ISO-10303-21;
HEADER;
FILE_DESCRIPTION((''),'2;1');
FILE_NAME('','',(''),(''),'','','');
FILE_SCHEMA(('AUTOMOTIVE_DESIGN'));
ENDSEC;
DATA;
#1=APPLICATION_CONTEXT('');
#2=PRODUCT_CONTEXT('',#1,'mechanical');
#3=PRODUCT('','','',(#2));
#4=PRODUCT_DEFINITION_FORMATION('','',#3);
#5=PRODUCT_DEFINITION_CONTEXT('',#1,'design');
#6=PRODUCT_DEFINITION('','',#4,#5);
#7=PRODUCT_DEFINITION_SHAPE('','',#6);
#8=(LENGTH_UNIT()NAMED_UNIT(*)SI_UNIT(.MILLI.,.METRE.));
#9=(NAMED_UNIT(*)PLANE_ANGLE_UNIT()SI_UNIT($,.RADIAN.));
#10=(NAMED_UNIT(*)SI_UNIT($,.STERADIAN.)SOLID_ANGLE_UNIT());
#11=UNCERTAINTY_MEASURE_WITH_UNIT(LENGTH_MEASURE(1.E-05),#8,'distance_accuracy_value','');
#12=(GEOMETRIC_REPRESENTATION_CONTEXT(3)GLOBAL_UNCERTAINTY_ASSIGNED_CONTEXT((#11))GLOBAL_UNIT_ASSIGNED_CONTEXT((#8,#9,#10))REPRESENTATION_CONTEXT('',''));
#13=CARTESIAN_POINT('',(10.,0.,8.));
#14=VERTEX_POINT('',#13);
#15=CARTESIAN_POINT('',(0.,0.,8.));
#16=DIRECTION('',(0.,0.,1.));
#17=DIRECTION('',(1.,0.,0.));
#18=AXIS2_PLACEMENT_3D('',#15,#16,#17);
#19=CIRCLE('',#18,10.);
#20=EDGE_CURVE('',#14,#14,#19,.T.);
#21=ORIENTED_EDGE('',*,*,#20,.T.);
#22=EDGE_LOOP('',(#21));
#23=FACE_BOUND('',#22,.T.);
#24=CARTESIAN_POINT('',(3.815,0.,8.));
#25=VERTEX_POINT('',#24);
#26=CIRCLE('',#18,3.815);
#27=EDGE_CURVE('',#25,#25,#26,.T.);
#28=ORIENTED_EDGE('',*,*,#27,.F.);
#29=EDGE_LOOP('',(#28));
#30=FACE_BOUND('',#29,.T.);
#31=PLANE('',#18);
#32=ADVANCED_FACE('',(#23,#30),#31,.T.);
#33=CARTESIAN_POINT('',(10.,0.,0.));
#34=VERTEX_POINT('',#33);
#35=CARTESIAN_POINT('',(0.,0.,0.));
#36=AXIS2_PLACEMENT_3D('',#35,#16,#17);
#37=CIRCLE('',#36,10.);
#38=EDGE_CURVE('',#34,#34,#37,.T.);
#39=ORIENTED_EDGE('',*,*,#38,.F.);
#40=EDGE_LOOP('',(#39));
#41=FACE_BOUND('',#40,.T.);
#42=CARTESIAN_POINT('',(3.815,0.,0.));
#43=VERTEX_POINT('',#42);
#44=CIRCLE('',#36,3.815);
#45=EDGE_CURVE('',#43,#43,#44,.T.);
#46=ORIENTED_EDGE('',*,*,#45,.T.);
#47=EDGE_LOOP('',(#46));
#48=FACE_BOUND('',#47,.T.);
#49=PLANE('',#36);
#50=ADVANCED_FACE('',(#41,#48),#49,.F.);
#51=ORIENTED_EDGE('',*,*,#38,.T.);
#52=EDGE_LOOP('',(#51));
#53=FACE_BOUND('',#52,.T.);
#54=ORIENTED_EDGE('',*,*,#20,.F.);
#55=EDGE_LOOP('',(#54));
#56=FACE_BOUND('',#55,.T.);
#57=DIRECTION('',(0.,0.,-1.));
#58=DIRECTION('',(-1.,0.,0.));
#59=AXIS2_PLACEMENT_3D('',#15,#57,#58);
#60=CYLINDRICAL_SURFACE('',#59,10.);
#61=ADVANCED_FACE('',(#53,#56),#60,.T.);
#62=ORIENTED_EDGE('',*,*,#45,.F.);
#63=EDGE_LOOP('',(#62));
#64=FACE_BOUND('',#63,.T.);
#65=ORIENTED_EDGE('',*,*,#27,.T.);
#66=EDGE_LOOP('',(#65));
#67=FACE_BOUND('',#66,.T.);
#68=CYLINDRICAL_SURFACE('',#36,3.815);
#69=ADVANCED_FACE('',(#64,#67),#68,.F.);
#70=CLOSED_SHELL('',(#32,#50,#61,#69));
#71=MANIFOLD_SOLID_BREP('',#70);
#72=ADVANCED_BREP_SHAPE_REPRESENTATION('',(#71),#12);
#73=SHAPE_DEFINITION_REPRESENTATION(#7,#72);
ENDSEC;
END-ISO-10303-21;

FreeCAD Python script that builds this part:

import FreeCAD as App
import Part
import Sketcher

doc = App.newDocument("Part")
params = doc.addObject("Spreadsheet::Sheet", "Params")
for row, (alias, value) in enumerate([
    ("sketch1_diameter", "20 mm"),
    ("pad1_length", "8 mm"),
    ("sketch2_diameter", "7.63 mm"),
], start=1):
    params.set(f"A{row}", alias)
    params.set(f"B{row}", "=" + value)
    params.setAlias(f"B{row}", alias)

body = doc.addObject("PartDesign::Body", "Body")

# Sketch on XY plane
sketch1 = body.newObject("Sketcher::SketchObject", "Sketch")
sketch1.AttachmentSupport = (doc.getObject("XY_Plane"), [""])
sketch1.MapMode = "FlatFace"
sketch1.addGeometry(Part.Circle(App.Vector(0, 0, 0), App.Vector(0, 0, 1), 10), False)
sketch1.addConstraint([
    Sketcher.Constraint("Coincident", 0, 3, -1, 1),
    Sketcher.Constraint("Diameter", 0, 20.0),
])
sketch1.setExpression("Constraints[1]", "Params.sketch1_diameter")
pad1 = body.newObject("PartDesign::Pad", "Pad")
pad1.Profile = sketch1
pad1.setExpression("Length", "Params.pad1_length")

# Sketch on XY plane
sketch2 = body.newObject("Sketcher::SketchObject", "Sketch001")
sketch2.AttachmentSupport = (doc.getObject("XY_Plane"), [""])
sketch2.MapMode = "FlatFace"
sketch2.AttachmentOffset = App.Placement(App.Vector(0, 0, 8), App.Rotation())
sketch2.addGeometry(Part.Circle(App.Vector(0, 0, 0), App.Vector(0, 0, 1), 3.8), False)
sketch2.addConstraint([
    Sketcher.Constraint("Coincident", 0, 3, -1, 1),
    Sketcher.Constraint("Diameter", 0, 7.63),
])
sketch2.setExpression("Constraints[1]", "Params.sketch2_diameter")
pocket1 = body.newObject("PartDesign::Pocket", "Pocket")
pocket1.Profile = sketch2
pocket1.Type = "ThroughAll"

doc.recompute()
